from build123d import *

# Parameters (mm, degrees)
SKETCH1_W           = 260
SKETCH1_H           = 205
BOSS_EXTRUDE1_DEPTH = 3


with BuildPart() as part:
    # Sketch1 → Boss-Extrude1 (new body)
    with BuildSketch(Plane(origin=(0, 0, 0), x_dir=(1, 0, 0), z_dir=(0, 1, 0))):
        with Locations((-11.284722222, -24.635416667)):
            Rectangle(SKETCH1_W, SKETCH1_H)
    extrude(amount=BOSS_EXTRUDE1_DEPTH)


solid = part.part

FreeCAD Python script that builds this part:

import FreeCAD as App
import Part
import Sketcher
from FreeCAD import Vector

doc = App.newDocument("Part")
body = doc.addObject("PartDesign::Body", "Body")

sketch1 = body.newObject("Sketcher::SketchObject", "Sketch")
sketch1.AttachmentSupport = (doc.getObject("XZ_Plane"), [""])
sketch1.MapMode = "FlatFace"
sketch1.addGeometry([
    Part.LineSegment(Vector(-141, -78, 0), Vector(-141, 127, 0)),
    Part.LineSegment(Vector(-141, 127, 0), Vector(119, 127, 0)),
    Part.LineSegment(Vector(119, 127, 0), Vector(119, -78, 0)),
    Part.LineSegment(Vector(119, -78, 0), Vector(-141, -78, 0)),
], False)
sketch1.addConstraint([
    Sketcher.Constraint("Coincident", 0, 2, 1, 1),
    Sketcher.Constraint("Coincident", 1, 2, 2, 1),
    Sketcher.Constraint("Coincident", 2, 2, 3, 1),
    Sketcher.Constraint("Coincident", 3, 2, 0, 1),
    Sketcher.Constraint("Vertical", 0),
    Sketcher.Constraint("Horizontal", 1),
    Sketcher.Constraint("Vertical", 2),
    Sketcher.Constraint("Horizontal", 3),
    Sketcher.Constraint("DistanceX", 1, 1, 1, 2, 260.0),
    Sketcher.Constraint("DistanceY", 0, 1, 0, 2, 205.0),
    Sketcher.Constraint("DistanceX", 0, 2, -1, 1, 141.284722),
    Sketcher.Constraint("DistanceY", -1, 1, 0, 2, 127.135417),
])
pad1 = body.newObject("PartDesign::Pad", "Pad")
pad1.Profile = sketch1
pad1.Length = 3
pad1.Reversed = True

doc.recompute()
